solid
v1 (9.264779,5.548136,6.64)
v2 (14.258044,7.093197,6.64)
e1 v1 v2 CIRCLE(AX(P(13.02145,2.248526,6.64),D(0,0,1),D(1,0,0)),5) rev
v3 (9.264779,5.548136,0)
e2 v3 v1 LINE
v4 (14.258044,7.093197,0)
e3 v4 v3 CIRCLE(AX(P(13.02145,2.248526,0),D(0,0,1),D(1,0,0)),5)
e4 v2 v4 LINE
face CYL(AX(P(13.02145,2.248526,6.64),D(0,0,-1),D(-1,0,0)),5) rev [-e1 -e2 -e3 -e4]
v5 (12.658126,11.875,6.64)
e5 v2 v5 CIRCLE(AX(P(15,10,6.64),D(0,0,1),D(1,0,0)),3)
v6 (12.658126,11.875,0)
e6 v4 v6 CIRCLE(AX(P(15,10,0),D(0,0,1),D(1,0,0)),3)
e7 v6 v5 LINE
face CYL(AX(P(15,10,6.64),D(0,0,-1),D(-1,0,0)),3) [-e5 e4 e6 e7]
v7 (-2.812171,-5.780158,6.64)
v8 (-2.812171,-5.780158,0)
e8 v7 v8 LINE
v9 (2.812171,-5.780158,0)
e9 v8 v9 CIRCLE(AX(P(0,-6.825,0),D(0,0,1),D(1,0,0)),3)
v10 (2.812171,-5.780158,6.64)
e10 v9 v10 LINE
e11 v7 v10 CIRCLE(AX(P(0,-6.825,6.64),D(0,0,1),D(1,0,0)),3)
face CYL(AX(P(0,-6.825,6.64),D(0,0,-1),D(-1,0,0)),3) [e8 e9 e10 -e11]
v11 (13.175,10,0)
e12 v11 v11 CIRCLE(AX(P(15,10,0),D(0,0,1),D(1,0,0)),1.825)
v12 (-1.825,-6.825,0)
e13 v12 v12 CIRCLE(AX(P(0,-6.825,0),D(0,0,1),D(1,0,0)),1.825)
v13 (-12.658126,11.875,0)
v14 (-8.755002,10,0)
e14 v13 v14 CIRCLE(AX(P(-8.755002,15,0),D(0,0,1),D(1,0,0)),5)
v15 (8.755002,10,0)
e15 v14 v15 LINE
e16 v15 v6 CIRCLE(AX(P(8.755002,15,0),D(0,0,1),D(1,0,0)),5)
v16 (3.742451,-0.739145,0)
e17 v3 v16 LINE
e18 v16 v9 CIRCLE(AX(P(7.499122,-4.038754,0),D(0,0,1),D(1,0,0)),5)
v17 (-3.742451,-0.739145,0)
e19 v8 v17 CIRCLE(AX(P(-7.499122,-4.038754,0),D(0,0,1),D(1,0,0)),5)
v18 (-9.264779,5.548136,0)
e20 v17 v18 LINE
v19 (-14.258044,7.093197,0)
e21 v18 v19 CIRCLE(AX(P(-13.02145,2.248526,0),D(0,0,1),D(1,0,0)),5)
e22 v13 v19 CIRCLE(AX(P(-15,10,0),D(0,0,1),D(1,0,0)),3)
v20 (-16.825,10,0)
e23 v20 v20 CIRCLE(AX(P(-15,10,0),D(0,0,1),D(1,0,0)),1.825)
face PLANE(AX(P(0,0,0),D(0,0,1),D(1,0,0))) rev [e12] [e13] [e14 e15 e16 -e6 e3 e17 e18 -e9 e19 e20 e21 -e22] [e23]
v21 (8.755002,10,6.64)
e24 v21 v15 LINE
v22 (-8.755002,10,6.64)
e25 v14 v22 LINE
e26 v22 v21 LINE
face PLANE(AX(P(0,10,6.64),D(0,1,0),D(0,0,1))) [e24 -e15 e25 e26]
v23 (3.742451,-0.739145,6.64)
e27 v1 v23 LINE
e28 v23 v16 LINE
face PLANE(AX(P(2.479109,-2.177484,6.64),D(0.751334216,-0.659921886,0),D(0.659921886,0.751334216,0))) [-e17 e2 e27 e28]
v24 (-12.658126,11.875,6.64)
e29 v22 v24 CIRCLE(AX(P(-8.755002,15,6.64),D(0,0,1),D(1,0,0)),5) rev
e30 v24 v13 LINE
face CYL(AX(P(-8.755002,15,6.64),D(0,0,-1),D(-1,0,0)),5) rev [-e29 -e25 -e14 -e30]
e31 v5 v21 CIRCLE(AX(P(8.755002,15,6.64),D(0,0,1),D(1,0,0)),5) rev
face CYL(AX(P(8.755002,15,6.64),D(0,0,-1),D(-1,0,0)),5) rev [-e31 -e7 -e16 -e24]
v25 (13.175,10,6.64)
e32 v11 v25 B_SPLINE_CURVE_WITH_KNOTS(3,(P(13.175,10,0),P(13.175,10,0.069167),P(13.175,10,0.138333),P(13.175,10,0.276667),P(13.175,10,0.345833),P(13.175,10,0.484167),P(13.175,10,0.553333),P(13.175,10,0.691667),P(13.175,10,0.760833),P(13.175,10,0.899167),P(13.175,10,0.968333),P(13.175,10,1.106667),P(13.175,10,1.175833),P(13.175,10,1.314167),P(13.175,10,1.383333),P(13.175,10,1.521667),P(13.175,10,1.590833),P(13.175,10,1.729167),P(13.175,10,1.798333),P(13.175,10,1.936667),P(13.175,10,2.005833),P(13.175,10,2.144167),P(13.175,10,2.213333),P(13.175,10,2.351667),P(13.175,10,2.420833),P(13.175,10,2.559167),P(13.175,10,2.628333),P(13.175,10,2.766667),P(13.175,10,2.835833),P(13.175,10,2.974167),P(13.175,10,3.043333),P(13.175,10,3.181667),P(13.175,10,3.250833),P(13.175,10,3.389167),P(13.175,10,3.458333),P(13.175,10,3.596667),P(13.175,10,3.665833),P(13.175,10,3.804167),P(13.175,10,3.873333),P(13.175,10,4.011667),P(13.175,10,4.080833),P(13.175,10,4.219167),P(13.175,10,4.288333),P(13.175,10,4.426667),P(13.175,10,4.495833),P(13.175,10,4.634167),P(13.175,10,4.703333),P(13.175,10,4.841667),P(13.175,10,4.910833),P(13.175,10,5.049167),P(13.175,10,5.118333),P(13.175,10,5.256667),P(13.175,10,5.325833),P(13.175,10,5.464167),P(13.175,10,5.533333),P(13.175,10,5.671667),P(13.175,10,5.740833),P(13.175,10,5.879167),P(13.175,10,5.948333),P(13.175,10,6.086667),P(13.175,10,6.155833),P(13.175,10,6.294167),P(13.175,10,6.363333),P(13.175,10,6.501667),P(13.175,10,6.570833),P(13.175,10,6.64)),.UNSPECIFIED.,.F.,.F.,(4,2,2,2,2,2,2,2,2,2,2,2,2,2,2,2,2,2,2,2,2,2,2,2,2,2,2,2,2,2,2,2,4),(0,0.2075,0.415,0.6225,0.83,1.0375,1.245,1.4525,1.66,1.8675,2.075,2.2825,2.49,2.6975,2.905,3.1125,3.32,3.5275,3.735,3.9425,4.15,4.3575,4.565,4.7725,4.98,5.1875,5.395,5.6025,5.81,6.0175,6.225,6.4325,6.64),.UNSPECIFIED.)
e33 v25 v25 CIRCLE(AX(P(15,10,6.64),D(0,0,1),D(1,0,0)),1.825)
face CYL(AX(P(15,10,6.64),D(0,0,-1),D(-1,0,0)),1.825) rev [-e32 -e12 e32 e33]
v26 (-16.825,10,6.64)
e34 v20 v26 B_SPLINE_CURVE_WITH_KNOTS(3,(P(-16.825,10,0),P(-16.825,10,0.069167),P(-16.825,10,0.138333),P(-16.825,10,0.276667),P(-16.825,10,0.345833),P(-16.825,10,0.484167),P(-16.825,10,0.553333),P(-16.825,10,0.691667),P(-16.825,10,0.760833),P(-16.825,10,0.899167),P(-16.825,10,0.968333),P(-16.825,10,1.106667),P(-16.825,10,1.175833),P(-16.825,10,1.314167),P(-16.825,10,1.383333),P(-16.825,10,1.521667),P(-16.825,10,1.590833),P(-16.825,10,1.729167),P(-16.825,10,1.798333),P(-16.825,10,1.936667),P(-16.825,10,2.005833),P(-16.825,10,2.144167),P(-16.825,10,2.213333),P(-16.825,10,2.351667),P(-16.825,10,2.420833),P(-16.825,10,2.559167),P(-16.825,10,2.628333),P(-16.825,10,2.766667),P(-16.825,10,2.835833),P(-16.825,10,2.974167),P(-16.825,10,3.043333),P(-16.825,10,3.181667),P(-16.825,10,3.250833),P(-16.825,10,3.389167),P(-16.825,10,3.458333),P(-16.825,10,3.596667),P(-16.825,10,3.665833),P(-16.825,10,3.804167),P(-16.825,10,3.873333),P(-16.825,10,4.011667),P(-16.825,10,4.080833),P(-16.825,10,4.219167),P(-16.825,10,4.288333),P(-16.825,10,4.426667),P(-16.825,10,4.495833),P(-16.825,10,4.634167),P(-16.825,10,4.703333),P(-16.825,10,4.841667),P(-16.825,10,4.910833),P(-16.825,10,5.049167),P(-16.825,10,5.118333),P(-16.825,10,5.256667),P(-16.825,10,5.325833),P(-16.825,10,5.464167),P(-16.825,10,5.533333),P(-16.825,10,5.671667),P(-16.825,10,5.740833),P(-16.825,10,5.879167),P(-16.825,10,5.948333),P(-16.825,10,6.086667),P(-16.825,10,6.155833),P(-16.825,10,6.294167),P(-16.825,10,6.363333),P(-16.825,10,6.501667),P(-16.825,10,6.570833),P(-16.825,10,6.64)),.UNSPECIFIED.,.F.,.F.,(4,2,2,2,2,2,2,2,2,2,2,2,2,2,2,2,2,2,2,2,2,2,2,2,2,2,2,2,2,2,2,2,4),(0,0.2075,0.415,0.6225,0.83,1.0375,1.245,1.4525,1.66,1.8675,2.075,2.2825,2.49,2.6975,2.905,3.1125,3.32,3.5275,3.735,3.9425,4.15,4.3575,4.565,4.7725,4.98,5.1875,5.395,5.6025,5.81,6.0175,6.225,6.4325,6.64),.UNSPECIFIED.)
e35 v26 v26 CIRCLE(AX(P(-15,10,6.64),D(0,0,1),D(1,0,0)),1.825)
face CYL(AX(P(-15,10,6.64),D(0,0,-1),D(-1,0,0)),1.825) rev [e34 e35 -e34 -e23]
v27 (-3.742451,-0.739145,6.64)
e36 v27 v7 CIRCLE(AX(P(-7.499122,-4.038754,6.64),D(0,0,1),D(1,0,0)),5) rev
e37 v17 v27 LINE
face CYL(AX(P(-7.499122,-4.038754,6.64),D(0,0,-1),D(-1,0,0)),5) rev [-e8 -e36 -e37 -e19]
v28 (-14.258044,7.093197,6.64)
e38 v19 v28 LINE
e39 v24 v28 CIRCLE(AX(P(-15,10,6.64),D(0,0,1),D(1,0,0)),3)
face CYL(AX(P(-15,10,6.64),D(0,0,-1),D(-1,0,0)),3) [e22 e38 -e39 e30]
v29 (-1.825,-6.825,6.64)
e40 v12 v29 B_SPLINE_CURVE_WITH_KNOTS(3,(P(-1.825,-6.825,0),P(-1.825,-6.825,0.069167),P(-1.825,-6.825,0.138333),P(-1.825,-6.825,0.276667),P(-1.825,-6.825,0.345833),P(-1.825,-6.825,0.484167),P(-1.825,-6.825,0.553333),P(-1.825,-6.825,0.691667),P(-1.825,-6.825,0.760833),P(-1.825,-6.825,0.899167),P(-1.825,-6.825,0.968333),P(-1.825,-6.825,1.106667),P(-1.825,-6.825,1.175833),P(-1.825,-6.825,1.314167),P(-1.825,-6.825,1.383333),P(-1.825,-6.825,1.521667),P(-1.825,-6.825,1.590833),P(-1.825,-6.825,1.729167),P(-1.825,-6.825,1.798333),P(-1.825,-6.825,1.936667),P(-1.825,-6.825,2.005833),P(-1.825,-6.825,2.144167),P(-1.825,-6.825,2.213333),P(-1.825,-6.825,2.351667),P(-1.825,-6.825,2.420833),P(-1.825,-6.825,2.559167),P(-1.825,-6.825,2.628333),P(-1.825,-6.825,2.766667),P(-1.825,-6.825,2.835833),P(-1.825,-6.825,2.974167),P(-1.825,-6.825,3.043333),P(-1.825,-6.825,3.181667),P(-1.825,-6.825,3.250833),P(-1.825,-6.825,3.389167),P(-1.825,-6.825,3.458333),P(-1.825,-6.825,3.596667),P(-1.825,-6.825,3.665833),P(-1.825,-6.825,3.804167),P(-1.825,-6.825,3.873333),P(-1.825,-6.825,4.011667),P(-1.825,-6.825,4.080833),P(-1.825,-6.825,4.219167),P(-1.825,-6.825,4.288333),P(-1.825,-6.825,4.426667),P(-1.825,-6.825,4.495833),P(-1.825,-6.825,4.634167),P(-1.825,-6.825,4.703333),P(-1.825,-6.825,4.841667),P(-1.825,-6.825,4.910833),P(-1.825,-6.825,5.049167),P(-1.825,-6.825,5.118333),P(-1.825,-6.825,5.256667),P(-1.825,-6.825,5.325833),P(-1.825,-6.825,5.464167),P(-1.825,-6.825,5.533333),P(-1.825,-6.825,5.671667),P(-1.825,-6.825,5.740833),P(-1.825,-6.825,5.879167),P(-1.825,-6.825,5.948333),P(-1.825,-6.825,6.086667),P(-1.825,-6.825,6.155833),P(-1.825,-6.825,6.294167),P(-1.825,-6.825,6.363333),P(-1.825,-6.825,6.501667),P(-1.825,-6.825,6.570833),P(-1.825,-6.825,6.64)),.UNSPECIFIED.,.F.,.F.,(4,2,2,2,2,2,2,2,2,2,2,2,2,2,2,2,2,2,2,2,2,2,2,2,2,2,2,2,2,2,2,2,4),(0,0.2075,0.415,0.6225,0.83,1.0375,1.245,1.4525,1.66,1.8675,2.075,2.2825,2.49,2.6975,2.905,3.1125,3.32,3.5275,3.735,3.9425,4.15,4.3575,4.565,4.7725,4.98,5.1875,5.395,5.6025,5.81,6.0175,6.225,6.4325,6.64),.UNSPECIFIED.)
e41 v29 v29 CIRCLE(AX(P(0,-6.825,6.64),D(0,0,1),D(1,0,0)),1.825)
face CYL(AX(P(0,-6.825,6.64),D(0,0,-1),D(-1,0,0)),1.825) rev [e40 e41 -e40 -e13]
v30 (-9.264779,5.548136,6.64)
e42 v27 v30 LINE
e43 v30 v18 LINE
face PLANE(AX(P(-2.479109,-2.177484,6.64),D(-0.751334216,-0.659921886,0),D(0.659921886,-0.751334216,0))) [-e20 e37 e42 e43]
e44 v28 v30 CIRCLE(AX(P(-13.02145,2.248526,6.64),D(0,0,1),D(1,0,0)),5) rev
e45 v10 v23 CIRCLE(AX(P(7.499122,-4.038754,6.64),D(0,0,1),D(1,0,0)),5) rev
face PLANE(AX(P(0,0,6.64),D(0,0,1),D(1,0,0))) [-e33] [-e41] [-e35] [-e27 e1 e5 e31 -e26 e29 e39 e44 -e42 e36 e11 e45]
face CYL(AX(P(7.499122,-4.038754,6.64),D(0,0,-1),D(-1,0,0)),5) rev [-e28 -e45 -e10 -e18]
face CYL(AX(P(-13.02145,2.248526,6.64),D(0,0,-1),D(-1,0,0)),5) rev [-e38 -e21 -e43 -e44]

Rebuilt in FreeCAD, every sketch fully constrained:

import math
import FreeCAD as App
import Part
import Sketcher
Q = App.Units.Quantity


def edges_at(feature, points):
    """Names of the edges that pass closest to the given points."""
    edges = feature.Shape.Edges
    near = lambda p: min(range(len(edges)), key=lambda i: edges[i].distToShape(Part.Vertex(*p))[0])
    return sorted({f"Edge{near(p) + 1}" for p in points})

doc = App.newDocument("Part")
body = doc.addObject("PartDesign::Body", "Body")

# Sketch on XY plane
sketch1 = body.newObject("Sketcher::SketchObject", "Sketch")
sketch1.AttachmentSupport = (doc.getObject("XY_Plane"), [""])
sketch1.MapMode = "FlatFace"
sketch1.addGeometry(Part.ArcOfCircle(Part.Circle(App.Vector(-15, 10, 0), App.Vector(0, 0, 1), 3), math.radians(0), math.radians(338)), False)
sketch1.addGeometry(Part.LineSegment(App.Vector(-12.2, 8.9, 0), App.Vector(-0.9, -4, 0)), False)
sketch1.addGeometry(Part.ArcOfCircle(Part.Circle(App.Vector(0, -6.8, 0), App.Vector(0, 0, 1), 3), math.radians(108), math.radians(432)), False)
sketch1.addGeometry(Part.LineSegment(App.Vector(0.9, -4, 0), App.Vector(12.2, 8.9, 0)), False)
sketch1.addGeometry(Part.ArcOfCircle(Part.Circle(App.Vector(15, 10, 0), App.Vector(0, 0, 1), 3), math.radians(-158), math.radians(180)), False)
sketch1.addGeometry(Part.LineSegment(App.Vector(12, 10, 0), App.Vector(-12, 10, 0)), False)
sketch1.addGeometry(Part.Circle(App.Vector(-15, 10, 0), App.Vector(0, 0, 1), 1.8), False)
sketch1.addGeometry(Part.Circle(App.Vector(0, -6.8, 0), App.Vector(0, 0, 1), 1.8), False)
sketch1.addGeometry(Part.Circle(App.Vector(15, 10, 0), App.Vector(0, 0, 1), 1.8), False)
sketch1.addConstraint(Sketcher.Constraint("Coincident", 0, 2, 1, 1))
sketch1.addConstraint(Sketcher.Constraint("Coincident", 1, 2, 2, 1))
sketch1.addConstraint(Sketcher.Constraint("Coincident", 2, 2, 3, 1))
sketch1.addConstraint(Sketcher.Constraint("Coincident", 3, 2, 4, 1))
sketch1.addConstraint(Sketcher.Constraint("Coincident", 4, 2, 5, 1))
sketch1.addConstraint(Sketcher.Constraint("Coincident", 5, 2, 0, 1))
sketch1.addConstraint(Sketcher.Constraint("Horizontal", 5))
sketch1.addConstraint(Sketcher.Constraint("Coincident", 6, 3, 0, 3))
sketch1.addConstraint(Sketcher.Constraint("Coincident", 7, 3, 2, 3))
sketch1.addConstraint(Sketcher.Constraint("Coincident", 8, 3, 4, 3))
sketch1.addConstraint(Sketcher.Constraint("Equal", 0, 2))
sketch1.addConstraint(Sketcher.Constraint("Equal", 2, 4))
sketch1.addConstraint(Sketcher.Constraint("Equal", 6, 7))
sketch1.addConstraint(Sketcher.Constraint("Equal", 7, 8))
sketch1.addConstraint(Sketcher.Constraint("Symmetric", 0, 3, 4, 3, -2))
sketch1.addConstraint(Sketcher.Constraint("Symmetric", 1, 2, 2, 2, -2))
sketch1.addConstraint(Sketcher.Constraint("Horizontal", 0, 2, 3, 2))
sketch1.addConstraint(Sketcher.Constraint("Horizontal", 8, 3, 4, 2))
sketch1.addConstraint(Sketcher.Constraint("Radius", 0, Q("3 mm")))
sketch1.addConstraint(Sketcher.Constraint("Diameter", 6, Q("3.65 mm")))
sketch1.addConstraint(Sketcher.Constraint("DistanceX", 5, 2, 5, 1, Q("24 mm")))
sketch1.addConstraint(Sketcher.Constraint("DistanceY", -1, 1, 0, 3, Q("10 mm")))
sketch1.addConstraint(Sketcher.Constraint("DistanceY", 2, 3, -1, 1, Q("6.825 mm")))
sketch1.addConstraint(Sketcher.Constraint("Distance", 1, Q("17.124082 mm")))
sketch1.addConstraint(Sketcher.Constraint("DistanceX", 0, 2, -1, 1, Q("12.208909 mm")))
pad1 = body.newObject("PartDesign::Pad", "Pad")
pad1.Profile = sketch1
pad1.Length = 6.64
doc.recompute()

fillet = body.newObject("PartDesign::Fillet", "Fillet")
fillet.Base = (pad1, edges_at(pad1, [
    (-12.209, 8.9, 3.32),
    (-12, 10, 3.32),
    (12, 10, 3.32),
    (12.209, 8.9, 3.32),
    (0.908, -3.966, 3.32),
    (-0.908, -3.966, 3.32),
]))
fillet.Radius = 5

doc.recompute()
